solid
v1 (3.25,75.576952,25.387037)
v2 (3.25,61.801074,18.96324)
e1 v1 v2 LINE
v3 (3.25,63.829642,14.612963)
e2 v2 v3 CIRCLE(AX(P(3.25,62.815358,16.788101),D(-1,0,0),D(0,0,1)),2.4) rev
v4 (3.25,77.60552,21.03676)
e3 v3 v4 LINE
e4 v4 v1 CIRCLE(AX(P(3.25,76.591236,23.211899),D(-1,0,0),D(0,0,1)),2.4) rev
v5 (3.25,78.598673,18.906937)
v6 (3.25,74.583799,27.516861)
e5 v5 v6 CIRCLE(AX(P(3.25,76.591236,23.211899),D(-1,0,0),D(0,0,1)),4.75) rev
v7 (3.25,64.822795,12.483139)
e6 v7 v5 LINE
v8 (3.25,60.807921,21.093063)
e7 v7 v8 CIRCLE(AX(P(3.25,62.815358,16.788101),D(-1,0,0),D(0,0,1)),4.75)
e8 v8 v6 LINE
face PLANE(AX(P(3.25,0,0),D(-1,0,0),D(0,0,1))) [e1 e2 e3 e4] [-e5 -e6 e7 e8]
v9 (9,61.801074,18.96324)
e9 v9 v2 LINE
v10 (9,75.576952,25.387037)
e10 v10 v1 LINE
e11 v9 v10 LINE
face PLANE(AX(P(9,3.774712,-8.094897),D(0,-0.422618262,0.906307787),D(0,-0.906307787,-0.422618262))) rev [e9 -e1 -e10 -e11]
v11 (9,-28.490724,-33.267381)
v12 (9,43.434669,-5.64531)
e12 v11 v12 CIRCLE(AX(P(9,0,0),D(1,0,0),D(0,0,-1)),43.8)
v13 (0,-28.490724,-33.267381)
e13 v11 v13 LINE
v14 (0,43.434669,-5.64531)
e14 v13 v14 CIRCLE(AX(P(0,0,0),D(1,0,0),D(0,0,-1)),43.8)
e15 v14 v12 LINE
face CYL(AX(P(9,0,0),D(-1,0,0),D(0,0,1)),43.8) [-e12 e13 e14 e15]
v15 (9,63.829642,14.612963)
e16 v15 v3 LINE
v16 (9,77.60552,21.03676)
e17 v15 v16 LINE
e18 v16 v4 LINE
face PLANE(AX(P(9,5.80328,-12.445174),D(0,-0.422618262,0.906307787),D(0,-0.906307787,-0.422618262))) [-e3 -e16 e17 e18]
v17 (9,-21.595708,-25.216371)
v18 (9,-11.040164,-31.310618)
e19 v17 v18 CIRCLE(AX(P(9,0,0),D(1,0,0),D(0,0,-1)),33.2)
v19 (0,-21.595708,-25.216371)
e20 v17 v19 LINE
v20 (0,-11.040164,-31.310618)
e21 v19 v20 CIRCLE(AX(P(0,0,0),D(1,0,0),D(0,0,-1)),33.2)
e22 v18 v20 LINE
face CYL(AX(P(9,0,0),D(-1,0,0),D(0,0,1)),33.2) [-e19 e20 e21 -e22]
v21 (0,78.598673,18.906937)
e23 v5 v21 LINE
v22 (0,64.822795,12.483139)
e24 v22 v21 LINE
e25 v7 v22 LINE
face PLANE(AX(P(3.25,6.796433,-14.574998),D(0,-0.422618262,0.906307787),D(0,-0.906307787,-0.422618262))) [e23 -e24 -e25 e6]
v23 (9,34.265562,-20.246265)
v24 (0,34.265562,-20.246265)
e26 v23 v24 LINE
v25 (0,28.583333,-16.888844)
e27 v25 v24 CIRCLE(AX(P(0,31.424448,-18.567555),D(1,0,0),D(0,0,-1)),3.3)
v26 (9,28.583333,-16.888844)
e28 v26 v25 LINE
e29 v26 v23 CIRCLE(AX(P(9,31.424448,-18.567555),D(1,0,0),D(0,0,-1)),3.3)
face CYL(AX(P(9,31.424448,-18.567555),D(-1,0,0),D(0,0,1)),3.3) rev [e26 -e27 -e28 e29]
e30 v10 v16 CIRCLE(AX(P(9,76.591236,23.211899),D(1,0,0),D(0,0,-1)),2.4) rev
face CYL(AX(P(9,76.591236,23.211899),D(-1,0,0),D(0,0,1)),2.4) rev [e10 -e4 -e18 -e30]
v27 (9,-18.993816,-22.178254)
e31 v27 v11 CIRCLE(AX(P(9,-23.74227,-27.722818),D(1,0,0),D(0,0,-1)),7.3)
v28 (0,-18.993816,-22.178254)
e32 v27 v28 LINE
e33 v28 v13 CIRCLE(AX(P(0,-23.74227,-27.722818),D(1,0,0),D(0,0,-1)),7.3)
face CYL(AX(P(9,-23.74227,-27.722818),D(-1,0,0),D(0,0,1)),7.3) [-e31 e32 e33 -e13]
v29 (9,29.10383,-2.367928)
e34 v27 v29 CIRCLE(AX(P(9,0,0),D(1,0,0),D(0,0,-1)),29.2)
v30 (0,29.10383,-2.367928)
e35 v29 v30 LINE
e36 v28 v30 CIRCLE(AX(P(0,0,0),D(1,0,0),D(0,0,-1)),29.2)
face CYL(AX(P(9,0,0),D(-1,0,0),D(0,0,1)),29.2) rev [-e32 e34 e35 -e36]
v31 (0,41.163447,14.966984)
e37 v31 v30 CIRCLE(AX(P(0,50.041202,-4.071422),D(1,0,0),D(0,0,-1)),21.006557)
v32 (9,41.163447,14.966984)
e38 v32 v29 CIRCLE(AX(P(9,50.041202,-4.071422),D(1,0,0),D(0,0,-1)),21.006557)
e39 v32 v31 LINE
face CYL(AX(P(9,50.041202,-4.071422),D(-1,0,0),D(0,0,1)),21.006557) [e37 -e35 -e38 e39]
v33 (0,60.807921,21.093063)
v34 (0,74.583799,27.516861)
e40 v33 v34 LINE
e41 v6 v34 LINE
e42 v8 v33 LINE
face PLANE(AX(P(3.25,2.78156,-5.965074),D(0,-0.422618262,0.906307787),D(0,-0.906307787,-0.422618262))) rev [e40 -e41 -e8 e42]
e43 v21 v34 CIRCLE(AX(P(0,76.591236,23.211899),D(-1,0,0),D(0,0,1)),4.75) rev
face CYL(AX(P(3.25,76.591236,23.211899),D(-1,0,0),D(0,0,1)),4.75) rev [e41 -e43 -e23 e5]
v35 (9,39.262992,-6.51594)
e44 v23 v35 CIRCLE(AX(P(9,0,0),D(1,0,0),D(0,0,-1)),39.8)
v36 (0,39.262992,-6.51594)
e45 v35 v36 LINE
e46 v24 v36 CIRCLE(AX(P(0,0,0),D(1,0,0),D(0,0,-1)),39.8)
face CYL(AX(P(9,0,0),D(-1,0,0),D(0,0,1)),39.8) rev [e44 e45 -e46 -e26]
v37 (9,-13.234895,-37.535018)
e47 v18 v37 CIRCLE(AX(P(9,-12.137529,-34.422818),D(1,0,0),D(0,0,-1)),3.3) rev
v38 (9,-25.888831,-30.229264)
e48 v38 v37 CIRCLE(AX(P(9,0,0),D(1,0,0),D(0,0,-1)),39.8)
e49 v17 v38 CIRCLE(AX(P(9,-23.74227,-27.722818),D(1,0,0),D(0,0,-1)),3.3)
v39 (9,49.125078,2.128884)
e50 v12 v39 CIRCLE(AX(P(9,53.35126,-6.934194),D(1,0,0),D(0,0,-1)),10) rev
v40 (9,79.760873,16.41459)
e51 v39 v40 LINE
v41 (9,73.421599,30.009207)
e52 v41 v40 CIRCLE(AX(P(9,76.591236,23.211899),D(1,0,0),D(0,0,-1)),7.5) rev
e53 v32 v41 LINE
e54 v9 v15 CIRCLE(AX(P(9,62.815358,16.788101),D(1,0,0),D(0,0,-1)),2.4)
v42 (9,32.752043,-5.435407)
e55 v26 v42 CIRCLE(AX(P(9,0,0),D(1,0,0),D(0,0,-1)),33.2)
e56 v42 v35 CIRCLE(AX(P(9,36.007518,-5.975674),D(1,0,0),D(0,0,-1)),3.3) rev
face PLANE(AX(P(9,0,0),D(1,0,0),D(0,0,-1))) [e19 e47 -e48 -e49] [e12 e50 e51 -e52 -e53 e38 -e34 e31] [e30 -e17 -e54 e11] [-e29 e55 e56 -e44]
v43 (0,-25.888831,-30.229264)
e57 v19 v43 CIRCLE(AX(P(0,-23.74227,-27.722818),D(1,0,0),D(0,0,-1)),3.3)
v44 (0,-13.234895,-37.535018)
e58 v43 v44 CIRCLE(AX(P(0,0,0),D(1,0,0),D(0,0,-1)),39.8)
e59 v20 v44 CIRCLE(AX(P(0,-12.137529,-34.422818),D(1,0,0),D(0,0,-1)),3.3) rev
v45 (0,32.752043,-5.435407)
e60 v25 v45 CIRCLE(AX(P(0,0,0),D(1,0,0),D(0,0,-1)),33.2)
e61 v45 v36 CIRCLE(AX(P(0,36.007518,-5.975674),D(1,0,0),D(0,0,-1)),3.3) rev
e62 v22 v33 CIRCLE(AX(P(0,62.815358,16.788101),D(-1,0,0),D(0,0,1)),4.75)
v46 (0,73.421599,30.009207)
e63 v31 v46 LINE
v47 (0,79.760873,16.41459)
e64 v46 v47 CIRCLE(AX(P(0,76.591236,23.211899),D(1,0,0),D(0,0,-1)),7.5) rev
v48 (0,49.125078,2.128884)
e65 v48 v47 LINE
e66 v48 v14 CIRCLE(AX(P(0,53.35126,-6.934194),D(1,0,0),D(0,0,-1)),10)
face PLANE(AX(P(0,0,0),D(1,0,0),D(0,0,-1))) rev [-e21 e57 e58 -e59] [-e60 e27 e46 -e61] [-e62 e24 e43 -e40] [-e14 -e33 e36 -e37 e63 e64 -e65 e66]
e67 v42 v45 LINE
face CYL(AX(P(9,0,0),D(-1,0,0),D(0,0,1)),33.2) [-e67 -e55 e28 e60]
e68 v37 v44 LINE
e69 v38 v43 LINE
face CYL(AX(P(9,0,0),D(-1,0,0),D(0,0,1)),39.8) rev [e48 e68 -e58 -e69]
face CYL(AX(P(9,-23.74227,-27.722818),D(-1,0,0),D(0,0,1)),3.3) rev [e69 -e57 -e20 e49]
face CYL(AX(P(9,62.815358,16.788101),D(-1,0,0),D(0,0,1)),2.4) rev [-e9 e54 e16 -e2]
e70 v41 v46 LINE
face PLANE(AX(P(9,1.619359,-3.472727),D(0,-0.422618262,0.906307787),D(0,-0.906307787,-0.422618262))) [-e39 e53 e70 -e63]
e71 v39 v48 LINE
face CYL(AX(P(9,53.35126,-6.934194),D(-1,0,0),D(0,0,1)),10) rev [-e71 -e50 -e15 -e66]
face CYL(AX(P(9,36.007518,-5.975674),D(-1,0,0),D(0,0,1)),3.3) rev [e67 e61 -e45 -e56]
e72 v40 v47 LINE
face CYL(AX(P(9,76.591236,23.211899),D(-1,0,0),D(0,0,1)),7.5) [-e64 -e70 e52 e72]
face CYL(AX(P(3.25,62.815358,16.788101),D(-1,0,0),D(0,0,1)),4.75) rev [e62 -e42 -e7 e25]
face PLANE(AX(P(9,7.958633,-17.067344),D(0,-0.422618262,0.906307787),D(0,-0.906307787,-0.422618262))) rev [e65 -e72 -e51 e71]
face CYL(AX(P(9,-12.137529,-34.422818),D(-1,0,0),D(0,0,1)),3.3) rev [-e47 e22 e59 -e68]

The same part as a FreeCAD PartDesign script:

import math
import FreeCAD as App
import Part
import Sketcher

V = App.Vector
Q = App.Units.Quantity


def edges_at(feature, points):
    """Names of the edges that pass closest to the given points."""
    edges = feature.Shape.Edges
    near = lambda p: min(range(len(edges)), key=lambda i: edges[i].distToShape(Part.Vertex(*p))[0])
    return sorted({f"Edge{near(p) + 1}" for p in points})

doc = App.newDocument("Part")
body = doc.addObject("PartDesign::Body", "Body")

# Sketch on YZ plane
sketch1 = body.newObject("Sketcher::SketchObject", "Sketch")
sketch1.AttachmentSupport = (doc.getObject("YZ_Plane"), [""])
sketch1.MapMode = "FlatFace"
sketch1.addGeometry([
    Part.LineSegment(V(73.421599, 30.009207, 0), V(41.163447, 14.966984, 0)),  # 0
    Part.ArcOfCircle(Part.Circle(V(50.041202, -4.071422, 0), V(0, 0, 1), 21.006557), math.radians(115), math.radians(175.348581)),  # 1
    Part.ArcOfCircle(Part.Circle(V(0, 0, 0), V(0, 0, 1), 29.2), math.radians(-130.577285), math.radians(-4.651419)),  # 2
    Part.ArcOfCircle(Part.Circle(V(-23.74227, -27.722818, 0), V(0, 0, 1), 7.3), math.radians(49.422715), math.radians(229.422715)),  # 3
    Part.ArcOfCircle(Part.Circle(V(0, 0, 0), V(0, 0, 1), 43.8), math.radians(-130.577285), math.radians(-0.464272)),  # 4
    Part.LineSegment(V(43.798562, -0.354911, 0), V(79.760873, 16.41459, 0)),  # 5
    Part.ArcOfCircle(Part.Circle(V(76.591236, 23.211899, 0), V(0, 0, 1), 7.5), math.radians(-65), math.radians(115)),  # 6
    Part.ArcOfCircle(Part.Circle(V(0, 0, 0), V(0, 0, 1), 39.8), math.radians(-130.577285), math.radians(-109.422715)),  # 7
    Part.ArcOfCircle(Part.Circle(V(-23.74227, -27.722818, 0), V(0, 0, 1), 3.3), math.radians(49.422715), math.radians(229.422715)),  # 8
    Part.ArcOfCircle(Part.Circle(V(0, 0, 0), V(0, 0, 1), 33.2), math.radians(-130.577285), math.radians(-109.422715)),  # 9
    Part.ArcOfCircle(Part.Circle(V(-12.137529, -34.422818, 0), V(0, 0, 1), 3.3), math.radians(-109.422715), math.radians(70.577285)),  # 10
    Part.LineSegment(V(77.60552, 21.03676, 0), V(63.829642, 14.612963, 0)),  # 11
    Part.ArcOfCircle(Part.Circle(V(62.815358, 16.788101, 0), V(0, 0, 1), 2.4), math.radians(115), math.radians(295)),  # 12
    Part.LineSegment(V(61.801074, 18.96324, 0), V(75.576952, 25.387037, 0)),  # 13
    Part.ArcOfCircle(Part.Circle(V(76.591236, 23.211899, 0), V(0, 0, 1), 2.4), math.radians(-65), math.radians(115)),  # 14
    Part.ArcOfCircle(Part.Circle(V(0, 0, 0), V(0, 0, 1), 33.2), math.radians(-30.577285), math.radians(-9.422715)),  # 15
    Part.ArcOfCircle(Part.Circle(V(36.007518, -5.975674, 0), V(0, 0, 1), 3.3), math.radians(-9.422715), math.radians(170.577285)),  # 16
    Part.ArcOfCircle(Part.Circle(V(0, 0, 0), V(0, 0, 1), 39.8), math.radians(-30.577285), math.radians(-9.422715)),  # 17
    Part.ArcOfCircle(Part.Circle(V(31.424448, -18.567555, 0), V(0, 0, 1), 3.3), math.radians(149.422715), math.radians(329.422715)),  # 18
], False)
sketch1.addConstraint([
    Sketcher.Constraint("Tangent", 0, 2, 1, 1),
    Sketcher.Constraint("Tangent", 1, 2, 2, 2),
    Sketcher.Constraint("Tangent", 2, 1, 3, 1),
    Sketcher.Constraint("Tangent", 3, 2, 4, 1),
    Sketcher.Constraint("Coincident", 4, 2, 5, 1),
    Sketcher.Constraint("Tangent", 5, 2, 6, 1),
    Sketcher.Constraint("Tangent", 6, 2, 0, 1),
    Sketcher.Constraint("Tangent", 7, 1, 8, 2),
    Sketcher.Constraint("Tangent", 8, 1, 9, 1),
    Sketcher.Constraint("Tangent", 9, 2, 10, 2),
    Sketcher.Constraint("Tangent", 10, 1, 7, 2),
    Sketcher.Constraint("Tangent", 11, 2, 12, 2),
    Sketcher.Constraint("Tangent", 12, 1, 13, 1),
    Sketcher.Constraint("Tangent", 13, 2, 14, 2),
    Sketcher.Constraint("Tangent", 14, 1, 11, 1),
    Sketcher.Constraint("Tangent", 15, 2, 16, 2),
    Sketcher.Constraint("Tangent", 16, 1, 17, 2),
    Sketcher.Constraint("Tangent", 17, 1, 18, 2),
    Sketcher.Constraint("Tangent", 18, 1, 15, 1),
    Sketcher.Constraint("Coincident", 2, 3, -1, 1),
    Sketcher.Constraint("Coincident", 4, 3, -1, 1),
    Sketcher.Constraint("Coincident", 7, 3, -1, 1),
    Sketcher.Constraint("Coincident", 9, 3, -1, 1),
    Sketcher.Constraint("Coincident", 15, 3, -1, 1),
    Sketcher.Constraint("Coincident", 17, 3, -1, 1),
    Sketcher.Constraint("Coincident", 8, 3, 3, 3),
    Sketcher.Constraint("Coincident", 14, 3, 6, 3),
    Sketcher.Constraint("Equal", 12, 14),
    Sketcher.Constraint("Equal", 9, 15),
    Sketcher.Constraint("Equal", 10, 16),
    Sketcher.Constraint("Parallel", 0, 5),
    Sketcher.Constraint("Parallel", 5, 11),
    Sketcher.Constraint("Radius", 2, 29.2),
    Sketcher.Constraint("Radius", 3, 7.3),
    Sketcher.Constraint("Radius", 6, 7.5),
    Sketcher.Constraint("Radius", 7, 39.8),
    Sketcher.Constraint("Radius", 12, 2.4),
    Sketcher.Constraint("Angle", 0, Q("-155 deg")),
    Sketcher.Constraint("Distance", 11, 15.2),
    Sketcher.Constraint("DistanceY", 10, 3, 3, 3, 6.7),
    Sketcher.Constraint("Radius", 1, 21.006557),
    Sketcher.Constraint("DistanceX", 18, 3, 0, 2, 9.739),
    Sketcher.Constraint("DistanceX", -1, 1, 1, 3, 50.041202),
    Sketcher.Constraint("DistanceY", -1, 1, 6, 3, 23.211899),
    Sketcher.Constraint("DistanceX", 7, 1, 10, 3, 13.751302),
    Sketcher.Constraint("DistanceX", -1, 1, 16, 1, 39.262992),
])
pad1 = body.newObject("PartDesign::Pad", "Pad")
pad1.Profile = sketch1
pad1.Length = 9
doc.recompute()

fillet = body.newObject("PartDesign::Fillet", "Fillet")
fillet.Base = (pad1, edges_at(pad1, [(4.5, 43.799, -0.355)]))
fillet.Radius = 10

# Sketch on YZ plane
sketch2 = body.newObject("Sketcher::SketchObject", "Sketch001")
sketch2.AttachmentSupport = (doc.getObject("YZ_Plane"), [""])
sketch2.MapMode = "FlatFace"
sketch2.addGeometry([
    Part.LineSegment(V(60.807921, 21.093063, 0), V(74.583799, 27.516861, 0)),
    Part.ArcOfCircle(Part.Circle(V(76.591236, 23.211899, 0), V(0, 0, 1), 4.75), math.radians(-65), math.radians(115)),
    Part.LineSegment(V(78.598673, 18.906937, 0), V(64.822795, 12.483139, 0)),
    Part.ArcOfCircle(Part.Circle(V(62.815358, 16.788101, 0), V(0, 0, 1), 4.75), math.radians(115), math.radians(295)),
], False)
sketch2.addConstraint([
    Sketcher.Constraint("Tangent", 0, 2, 1, 2),
    Sketcher.Constraint("Tangent", 1, 1, 2, 1),
    Sketcher.Constraint("Tangent", 2, 2, 3, 2),
    Sketcher.Constraint("Tangent", 3, 1, 0, 1),
    Sketcher.Constraint("Equal", 1, 3),
    Sketcher.Constraint("Angle", 0, Q("25 deg")),
    Sketcher.Constraint("Radius", 1, 4.75),
    Sketcher.Constraint("Distance", 0, 15.2),
    Sketcher.Constraint("DistanceY", -1, 1, 1, 3, 23.211899),
    Sketcher.Constraint("DistanceX", -1, 1, 0, 2, 74.583799),
])
pocket1 = body.newObject("PartDesign::Pocket", "Pocket")
pocket1.Profile = sketch2
pocket1.Length = 3.25
pocket1.Reversed = True

doc.recompute()
